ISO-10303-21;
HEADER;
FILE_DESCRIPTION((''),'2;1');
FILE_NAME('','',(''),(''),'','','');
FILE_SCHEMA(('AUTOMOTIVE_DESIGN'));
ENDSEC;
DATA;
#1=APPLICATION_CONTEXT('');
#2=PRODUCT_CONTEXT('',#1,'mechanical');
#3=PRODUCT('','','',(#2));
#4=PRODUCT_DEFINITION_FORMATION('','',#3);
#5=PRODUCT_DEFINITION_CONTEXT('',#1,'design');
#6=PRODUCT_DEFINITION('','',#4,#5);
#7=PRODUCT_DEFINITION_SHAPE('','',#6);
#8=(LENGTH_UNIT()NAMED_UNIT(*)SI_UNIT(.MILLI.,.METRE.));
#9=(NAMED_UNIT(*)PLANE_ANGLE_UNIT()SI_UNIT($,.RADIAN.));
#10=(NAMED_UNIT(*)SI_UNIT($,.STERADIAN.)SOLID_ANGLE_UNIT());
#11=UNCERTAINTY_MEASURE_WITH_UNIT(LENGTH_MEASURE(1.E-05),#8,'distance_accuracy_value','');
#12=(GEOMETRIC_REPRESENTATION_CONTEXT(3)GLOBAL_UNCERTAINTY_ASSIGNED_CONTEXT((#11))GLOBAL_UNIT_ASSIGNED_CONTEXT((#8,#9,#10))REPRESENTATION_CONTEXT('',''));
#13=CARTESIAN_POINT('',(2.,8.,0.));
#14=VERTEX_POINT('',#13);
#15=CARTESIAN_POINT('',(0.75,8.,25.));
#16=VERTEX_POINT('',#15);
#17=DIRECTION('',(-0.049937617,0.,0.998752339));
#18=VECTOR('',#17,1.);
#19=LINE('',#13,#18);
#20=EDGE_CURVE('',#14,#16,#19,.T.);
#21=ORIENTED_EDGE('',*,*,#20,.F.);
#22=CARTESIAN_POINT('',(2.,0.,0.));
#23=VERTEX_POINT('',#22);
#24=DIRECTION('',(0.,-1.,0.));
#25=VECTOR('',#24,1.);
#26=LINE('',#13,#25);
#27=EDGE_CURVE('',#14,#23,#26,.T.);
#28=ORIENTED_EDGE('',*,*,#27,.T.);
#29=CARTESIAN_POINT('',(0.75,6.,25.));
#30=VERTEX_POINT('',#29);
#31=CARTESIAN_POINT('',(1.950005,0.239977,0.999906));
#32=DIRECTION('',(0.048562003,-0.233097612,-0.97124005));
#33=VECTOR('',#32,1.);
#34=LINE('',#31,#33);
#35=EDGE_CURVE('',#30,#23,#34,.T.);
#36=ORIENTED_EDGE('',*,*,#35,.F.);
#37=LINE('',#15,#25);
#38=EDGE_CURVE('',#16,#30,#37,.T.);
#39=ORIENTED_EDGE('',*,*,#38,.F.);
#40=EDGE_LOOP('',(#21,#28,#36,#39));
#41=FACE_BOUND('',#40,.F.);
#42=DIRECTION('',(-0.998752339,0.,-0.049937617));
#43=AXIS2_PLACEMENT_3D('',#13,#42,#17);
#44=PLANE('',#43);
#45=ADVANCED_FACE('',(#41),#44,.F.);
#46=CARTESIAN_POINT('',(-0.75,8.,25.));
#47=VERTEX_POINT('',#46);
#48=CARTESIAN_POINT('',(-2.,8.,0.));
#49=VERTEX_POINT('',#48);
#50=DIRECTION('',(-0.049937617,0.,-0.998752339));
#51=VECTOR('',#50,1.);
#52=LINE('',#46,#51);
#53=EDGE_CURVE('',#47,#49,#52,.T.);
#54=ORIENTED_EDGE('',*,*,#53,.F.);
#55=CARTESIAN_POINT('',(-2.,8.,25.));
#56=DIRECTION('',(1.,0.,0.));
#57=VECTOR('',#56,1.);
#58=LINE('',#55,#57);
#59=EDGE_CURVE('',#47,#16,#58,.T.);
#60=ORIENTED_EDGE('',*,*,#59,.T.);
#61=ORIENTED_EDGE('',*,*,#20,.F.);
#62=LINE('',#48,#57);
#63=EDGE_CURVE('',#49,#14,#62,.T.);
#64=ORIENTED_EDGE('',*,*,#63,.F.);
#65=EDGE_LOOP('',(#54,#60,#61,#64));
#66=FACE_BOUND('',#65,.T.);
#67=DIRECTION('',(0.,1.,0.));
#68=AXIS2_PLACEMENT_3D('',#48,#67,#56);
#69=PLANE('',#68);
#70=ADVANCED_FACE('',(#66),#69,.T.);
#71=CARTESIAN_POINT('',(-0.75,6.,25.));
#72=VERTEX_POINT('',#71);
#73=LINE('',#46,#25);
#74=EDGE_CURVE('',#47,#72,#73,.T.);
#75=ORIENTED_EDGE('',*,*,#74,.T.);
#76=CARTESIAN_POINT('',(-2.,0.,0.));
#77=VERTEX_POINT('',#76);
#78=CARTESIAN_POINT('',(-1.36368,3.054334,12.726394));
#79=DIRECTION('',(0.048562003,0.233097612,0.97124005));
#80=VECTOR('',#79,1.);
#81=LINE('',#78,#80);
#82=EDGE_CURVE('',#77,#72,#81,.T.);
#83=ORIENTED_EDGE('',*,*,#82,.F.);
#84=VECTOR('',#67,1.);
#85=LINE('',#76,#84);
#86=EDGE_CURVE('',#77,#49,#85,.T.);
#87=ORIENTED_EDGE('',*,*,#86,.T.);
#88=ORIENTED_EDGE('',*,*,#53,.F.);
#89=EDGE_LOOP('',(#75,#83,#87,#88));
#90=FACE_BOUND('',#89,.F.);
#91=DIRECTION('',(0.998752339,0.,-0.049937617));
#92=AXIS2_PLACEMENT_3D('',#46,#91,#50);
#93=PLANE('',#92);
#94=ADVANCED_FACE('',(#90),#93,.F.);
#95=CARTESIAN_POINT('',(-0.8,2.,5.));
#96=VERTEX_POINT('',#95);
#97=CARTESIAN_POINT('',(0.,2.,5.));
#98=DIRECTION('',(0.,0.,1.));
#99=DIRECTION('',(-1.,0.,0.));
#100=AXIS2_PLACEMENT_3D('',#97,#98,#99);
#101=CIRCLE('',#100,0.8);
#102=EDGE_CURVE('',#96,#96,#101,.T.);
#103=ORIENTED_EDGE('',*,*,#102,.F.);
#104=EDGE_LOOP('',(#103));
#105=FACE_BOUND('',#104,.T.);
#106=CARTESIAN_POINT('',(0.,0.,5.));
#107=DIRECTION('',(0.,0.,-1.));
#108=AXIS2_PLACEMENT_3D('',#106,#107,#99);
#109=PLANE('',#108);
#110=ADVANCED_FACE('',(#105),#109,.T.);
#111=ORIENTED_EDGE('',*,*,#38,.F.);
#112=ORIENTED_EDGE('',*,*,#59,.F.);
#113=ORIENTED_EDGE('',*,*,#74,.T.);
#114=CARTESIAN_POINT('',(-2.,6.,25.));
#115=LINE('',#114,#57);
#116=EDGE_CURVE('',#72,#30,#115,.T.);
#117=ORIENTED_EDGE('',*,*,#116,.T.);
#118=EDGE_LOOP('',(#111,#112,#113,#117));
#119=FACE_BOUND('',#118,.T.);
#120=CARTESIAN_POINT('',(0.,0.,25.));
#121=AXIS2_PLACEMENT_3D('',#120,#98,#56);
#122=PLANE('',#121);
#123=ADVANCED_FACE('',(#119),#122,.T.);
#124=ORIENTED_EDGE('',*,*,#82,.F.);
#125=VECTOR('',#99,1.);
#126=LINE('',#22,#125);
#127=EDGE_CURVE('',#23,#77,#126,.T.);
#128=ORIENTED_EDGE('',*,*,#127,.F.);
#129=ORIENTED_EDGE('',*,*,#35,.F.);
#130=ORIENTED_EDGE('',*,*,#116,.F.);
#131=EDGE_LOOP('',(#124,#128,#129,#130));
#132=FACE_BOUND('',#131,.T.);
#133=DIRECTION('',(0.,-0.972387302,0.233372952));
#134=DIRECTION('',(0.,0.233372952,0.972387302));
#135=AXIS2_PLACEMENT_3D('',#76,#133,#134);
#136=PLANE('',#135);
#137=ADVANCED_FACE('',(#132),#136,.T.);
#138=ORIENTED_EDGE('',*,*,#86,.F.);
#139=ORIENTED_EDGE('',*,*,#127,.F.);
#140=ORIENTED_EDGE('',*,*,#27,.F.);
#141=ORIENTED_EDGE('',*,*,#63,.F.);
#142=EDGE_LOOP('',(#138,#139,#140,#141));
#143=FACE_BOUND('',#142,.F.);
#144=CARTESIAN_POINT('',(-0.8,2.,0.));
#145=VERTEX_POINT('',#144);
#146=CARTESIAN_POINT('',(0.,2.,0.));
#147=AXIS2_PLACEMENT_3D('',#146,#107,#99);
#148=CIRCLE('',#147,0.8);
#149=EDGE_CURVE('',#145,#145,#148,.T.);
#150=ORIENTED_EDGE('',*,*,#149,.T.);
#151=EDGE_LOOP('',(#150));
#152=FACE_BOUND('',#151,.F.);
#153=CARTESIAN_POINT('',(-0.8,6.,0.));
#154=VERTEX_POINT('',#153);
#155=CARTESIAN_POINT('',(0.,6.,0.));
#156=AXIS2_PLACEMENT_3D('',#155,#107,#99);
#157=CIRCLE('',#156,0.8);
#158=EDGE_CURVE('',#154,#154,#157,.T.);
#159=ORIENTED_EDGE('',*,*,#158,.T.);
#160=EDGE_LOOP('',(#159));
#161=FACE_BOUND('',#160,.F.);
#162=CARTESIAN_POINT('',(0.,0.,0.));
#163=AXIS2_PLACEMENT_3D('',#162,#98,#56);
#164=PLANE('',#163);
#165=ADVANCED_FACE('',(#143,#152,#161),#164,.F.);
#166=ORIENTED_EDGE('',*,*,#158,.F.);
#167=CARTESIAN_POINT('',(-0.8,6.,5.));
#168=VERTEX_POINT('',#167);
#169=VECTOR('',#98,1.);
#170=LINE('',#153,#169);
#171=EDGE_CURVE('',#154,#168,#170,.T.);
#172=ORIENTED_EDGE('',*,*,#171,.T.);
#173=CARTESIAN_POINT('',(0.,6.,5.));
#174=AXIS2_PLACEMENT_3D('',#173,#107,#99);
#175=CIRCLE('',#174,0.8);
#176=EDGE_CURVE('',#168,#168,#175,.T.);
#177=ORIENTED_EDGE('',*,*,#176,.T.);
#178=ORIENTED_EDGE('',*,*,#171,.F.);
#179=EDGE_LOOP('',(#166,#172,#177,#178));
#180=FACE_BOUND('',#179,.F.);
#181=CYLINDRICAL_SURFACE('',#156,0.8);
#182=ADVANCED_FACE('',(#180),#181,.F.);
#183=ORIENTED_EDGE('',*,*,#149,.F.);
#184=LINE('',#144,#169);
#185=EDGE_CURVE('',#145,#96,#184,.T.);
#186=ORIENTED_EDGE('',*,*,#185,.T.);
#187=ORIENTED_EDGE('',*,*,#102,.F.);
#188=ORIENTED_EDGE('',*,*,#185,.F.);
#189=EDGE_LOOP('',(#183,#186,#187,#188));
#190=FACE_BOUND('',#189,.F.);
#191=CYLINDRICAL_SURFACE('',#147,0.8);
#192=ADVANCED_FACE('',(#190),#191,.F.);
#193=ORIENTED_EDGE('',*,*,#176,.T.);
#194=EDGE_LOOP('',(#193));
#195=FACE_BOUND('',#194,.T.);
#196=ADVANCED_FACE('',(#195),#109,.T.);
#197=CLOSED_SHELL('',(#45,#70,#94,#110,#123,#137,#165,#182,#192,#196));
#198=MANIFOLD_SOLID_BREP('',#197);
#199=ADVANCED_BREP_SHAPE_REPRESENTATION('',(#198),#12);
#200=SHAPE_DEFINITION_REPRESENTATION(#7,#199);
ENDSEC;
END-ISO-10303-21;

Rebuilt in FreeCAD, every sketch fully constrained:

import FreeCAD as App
import Part
import Sketcher

V = App.Vector
Q = App.Units.Quantity


def add_polygon(sketch, points):
    """Adds a closed chain of lines whose ends are joined by coincident constraints."""
    first, n = sketch.GeometryCount, len(points)
    for a, b in zip(points, points[1:] + points[:1]):
        sketch.addGeometry(Part.LineSegment(App.Vector(*a, 0), App.Vector(*b, 0)), False)
    for i in range(n):
        sketch.addConstraint(Sketcher.Constraint("Coincident", first + i, 2, first + (i + 1) % n, 1))

doc = App.newDocument("Part")
body = doc.addObject("PartDesign::Body", "Body")

# Sketch on XY plane
sketch1 = body.newObject("Sketcher::SketchObject", "Sketch")
sketch1.AttachmentSupport = (doc.getObject("XY_Plane"), [""])
sketch1.MapMode = "FlatFace"
add_polygon(sketch1, [(2, 8), (-2, 8), (-2, 0), (2, 0)])  # lines 0-3
sketch1.addConstraint([
    Sketcher.Constraint("Horizontal", 0),
    Sketcher.Constraint("Vertical", 1),
    Sketcher.Constraint("Horizontal", 2),
    Sketcher.Constraint("Vertical", 3),
    Sketcher.Constraint("Symmetric", 1, 2, 2, 2, -1, 1),
    Sketcher.Constraint("DistanceX", 0, 2, 0, 1, Q("4 mm")),
    Sketcher.Constraint("DistanceY", 1, 2, 1, 1, Q("8 mm")),
])
pad1 = body.newObject("PartDesign::Pad", "Pad")
pad1.Profile = sketch1
pad1.Length = 25

# Sketch on YZ plane
sketch2 = body.newObject("Sketcher::SketchObject", "Sketch001")
sketch2.AttachmentSupport = (doc.getObject("YZ_Plane"), [""])
sketch2.MapMode = "FlatFace"
sketch2.AttachmentOffset = App.Placement(V(0, 0, -2), App.Rotation())
add_polygon(sketch2, [(6, 25), (0, 0), (0, 25)])  # lines 0-2
sketch2.addConstraint([
    Sketcher.Constraint("Vertical", 1),
    Sketcher.Constraint("Horizontal", 2),
    Sketcher.Constraint("Coincident", 0, 2, -1, 1),
    Sketcher.Constraint("DistanceX", 2, 1, 2, 2, Q("6 mm")),
    Sketcher.Constraint("DistanceY", 1, 1, 1, 2, Q("25 mm")),
])
pocket1 = body.newObject("PartDesign::Pocket", "Pocket")
pocket1.Profile = sketch2
pocket1.Type = "ThroughAll"
pocket1.Reversed = True

# Sketch on XZ plane
sketch3 = body.newObject("Sketcher::SketchObject", "Sketch002")
sketch3.AttachmentSupport = (doc.getObject("XZ_Plane"), [""])
sketch3.MapMode = "FlatFace"
sketch3.AttachmentOffset = App.Placement(V(0, 0, -8), App.Rotation())
add_polygon(sketch3, [(2, 25), (2, 0), (0.8, 25)])  # lines 0-2
add_polygon(sketch3, [(-0.8, 25), (-2, 0), (-2, 25)])  # lines 3-5
sketch3.addConstraint([
    Sketcher.Constraint("Vertical", 0),
    Sketcher.Constraint("Horizontal", 2),
    Sketcher.Constraint("Vertical", 4),
    Sketcher.Constraint("Horizontal", 5),
    Sketcher.Constraint("Symmetric", 0, 2, 3, 2, -1, 1),
    Sketcher.Constraint("Symmetric", 1, 2, 5, 2, -2),
    Sketcher.Constraint("PointOnObject", 0, 2, -1),
    Sketcher.Constraint("DistanceX", 5, 2, 1, 2, Q("1.5 mm")),
    Sketcher.Constraint("DistanceY", 0, 2, 0, 1, Q("25 mm")),
    Sketcher.Constraint("DistanceX", -1, 1, 0, 2, Q("2 mm")),
])
pocket2 = body.newObject("PartDesign::Pocket", "Pocket001")
pocket2.Profile = sketch3
pocket2.Type = "ThroughAll"
pocket2.Reversed = True

# Sketch on XY plane
sketch4 = body.newObject("Sketcher::SketchObject", "Sketch003")
sketch4.AttachmentSupport = (doc.getObject("XY_Plane"), [""])
sketch4.MapMode = "FlatFace"
sketch4.addGeometry([
    Part.Circle(V(0, 6, 0), V(0, 0, 1), 0.8),
    Part.Circle(V(0, 2, 0), V(0, 0, 1), 0.8),
], False)
sketch4.addConstraint([
    Sketcher.Constraint("Equal", 0, 1),
    Sketcher.Constraint("PointOnObject", 0, 3, -2),
    Sketcher.Constraint("PointOnObject", 1, 3, -2),
    Sketcher.Constraint("Diameter", 0, Q("1.6 mm")),
    Sketcher.Constraint("DistanceY", -1, 1, 1, 3, Q("2 mm")),
    Sketcher.Constraint("DistanceY", 1, 3, 0, 3, Q("4 mm")),
])
pocket3 = body.newObject("PartDesign::Pocket", "Pocket002")
pocket3.Profile = sketch4
pocket3.Length = 5
pocket3.Reversed = True

doc.recompute()
